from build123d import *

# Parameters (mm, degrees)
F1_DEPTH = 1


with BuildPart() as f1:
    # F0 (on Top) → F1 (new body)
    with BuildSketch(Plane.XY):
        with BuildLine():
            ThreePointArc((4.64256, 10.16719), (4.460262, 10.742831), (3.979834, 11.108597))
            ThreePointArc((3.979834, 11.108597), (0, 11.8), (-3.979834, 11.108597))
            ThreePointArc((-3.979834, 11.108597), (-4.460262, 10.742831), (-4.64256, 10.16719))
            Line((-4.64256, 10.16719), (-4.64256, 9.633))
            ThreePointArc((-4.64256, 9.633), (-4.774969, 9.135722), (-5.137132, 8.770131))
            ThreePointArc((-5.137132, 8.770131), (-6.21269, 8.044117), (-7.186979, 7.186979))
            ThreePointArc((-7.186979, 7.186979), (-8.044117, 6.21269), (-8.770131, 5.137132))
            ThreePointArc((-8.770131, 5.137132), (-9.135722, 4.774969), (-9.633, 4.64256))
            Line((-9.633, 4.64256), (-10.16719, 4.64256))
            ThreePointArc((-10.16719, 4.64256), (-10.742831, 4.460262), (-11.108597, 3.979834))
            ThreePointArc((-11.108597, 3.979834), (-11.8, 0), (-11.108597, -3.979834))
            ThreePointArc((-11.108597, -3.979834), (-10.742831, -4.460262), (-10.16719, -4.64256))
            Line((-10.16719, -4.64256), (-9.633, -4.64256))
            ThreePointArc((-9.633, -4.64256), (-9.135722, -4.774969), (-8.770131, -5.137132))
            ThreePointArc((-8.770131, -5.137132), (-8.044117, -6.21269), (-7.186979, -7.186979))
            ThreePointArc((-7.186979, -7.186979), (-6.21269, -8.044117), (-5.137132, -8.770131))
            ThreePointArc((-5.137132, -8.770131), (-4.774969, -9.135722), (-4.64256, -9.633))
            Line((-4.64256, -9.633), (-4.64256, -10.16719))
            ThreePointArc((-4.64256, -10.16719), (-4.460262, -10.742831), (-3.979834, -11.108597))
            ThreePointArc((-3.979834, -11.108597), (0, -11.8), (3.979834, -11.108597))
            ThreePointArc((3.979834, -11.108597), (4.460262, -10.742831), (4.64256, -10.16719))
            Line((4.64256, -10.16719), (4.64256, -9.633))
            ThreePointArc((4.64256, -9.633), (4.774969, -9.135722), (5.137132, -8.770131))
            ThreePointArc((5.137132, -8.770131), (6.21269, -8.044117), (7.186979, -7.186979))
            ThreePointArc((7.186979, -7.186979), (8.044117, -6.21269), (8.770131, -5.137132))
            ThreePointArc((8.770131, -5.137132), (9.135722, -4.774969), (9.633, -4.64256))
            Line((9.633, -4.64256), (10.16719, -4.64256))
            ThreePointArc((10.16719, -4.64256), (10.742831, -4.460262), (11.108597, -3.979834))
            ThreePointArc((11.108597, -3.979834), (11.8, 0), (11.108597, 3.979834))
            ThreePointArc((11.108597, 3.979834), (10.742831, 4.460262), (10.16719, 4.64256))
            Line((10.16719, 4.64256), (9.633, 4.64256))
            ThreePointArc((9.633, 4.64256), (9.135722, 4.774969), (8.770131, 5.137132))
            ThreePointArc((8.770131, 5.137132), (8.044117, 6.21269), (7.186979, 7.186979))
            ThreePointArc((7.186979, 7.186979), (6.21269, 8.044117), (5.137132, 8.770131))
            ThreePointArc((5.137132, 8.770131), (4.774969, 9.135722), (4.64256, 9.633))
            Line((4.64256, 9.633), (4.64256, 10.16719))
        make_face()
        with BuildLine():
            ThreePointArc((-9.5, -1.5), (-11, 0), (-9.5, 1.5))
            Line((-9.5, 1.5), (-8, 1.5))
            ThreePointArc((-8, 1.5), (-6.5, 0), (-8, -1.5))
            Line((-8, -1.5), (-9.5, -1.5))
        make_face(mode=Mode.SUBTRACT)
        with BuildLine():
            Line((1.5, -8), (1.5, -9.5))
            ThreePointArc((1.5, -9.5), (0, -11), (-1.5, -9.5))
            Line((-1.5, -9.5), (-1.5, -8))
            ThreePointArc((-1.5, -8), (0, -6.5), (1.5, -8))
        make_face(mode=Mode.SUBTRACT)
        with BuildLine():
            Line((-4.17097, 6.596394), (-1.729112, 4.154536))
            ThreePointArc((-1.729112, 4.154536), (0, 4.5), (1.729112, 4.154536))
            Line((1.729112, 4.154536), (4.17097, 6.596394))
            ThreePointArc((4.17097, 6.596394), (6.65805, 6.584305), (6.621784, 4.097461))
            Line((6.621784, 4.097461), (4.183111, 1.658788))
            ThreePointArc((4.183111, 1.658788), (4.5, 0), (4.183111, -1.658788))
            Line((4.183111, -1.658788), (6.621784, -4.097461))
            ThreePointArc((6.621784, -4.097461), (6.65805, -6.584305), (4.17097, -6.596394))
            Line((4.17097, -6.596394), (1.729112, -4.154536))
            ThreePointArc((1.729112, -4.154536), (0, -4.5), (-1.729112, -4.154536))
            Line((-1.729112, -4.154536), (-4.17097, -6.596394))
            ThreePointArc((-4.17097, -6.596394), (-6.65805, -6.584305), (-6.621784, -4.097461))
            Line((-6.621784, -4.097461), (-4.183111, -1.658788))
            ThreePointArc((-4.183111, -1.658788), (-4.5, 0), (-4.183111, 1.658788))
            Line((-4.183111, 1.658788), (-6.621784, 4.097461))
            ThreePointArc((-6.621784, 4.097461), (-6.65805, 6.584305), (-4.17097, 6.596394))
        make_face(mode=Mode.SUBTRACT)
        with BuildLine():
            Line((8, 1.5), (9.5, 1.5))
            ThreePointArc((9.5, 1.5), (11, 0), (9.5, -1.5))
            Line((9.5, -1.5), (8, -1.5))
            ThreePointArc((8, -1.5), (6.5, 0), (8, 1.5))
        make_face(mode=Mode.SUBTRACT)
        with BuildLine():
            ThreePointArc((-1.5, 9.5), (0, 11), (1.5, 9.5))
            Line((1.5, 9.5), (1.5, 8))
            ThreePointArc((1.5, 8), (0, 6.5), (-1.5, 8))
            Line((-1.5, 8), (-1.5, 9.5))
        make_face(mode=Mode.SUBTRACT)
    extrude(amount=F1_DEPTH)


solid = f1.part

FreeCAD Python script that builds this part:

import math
import FreeCAD as App
import Part
import Sketcher
from FreeCAD import Vector

doc = App.newDocument("Part")
body = doc.addObject("PartDesign::Body", "Body")

sketch1 = body.newObject("Sketcher::SketchObject", "Sketch")
sketch1.AttachmentSupport = (doc.getObject("XY_Plane"), [""])
sketch1.MapMode = "FlatFace"
sketch1.addGeometry([
    Part.ArcOfCircle(Part.Circle(Vector(3.6, 10.2, 0), Vector(0, 0, 1), 1), math.radians(0), math.radians(70)),
    Part.ArcOfCircle(Part.Circle(Vector(0, 0, 0), Vector(0, 0, 1), 11.8), math.radians(70), math.radians(110)),
    Part.ArcOfCircle(Part.Circle(Vector(-3.6, 10.2, 0), Vector(0, 0, 1), 1), math.radians(110), math.radians(180)),
    Part.LineSegment(Vector(-4.6, 10.2, 0), Vector(-4.6, 9.6, 0)),
    Part.ArcOfCircle(Part.Circle(Vector(-5.6, 9.6, 0), Vector(0, 0, 1), 1), math.radians(-60), math.radians(0)),
    Part.ArcOfCircle(Part.Circle(Vector(0, 0, 0), Vector(0, 0, 1), 10.2), math.radians(120.36), math.radians(135)),
    Part.ArcOfCircle(Part.Circle(Vector(0, 0, 0), Vector(0, 0, 1), 10.2), math.radians(135), math.radians(149.64)),
    Part.ArcOfCircle(Part.Circle(Vector(-9.6, 5.6, 0), Vector(0, 0, 1), 1), math.radians(-90), math.radians(-30)),
    Part.LineSegment(Vector(-9.6, 4.6, 0), Vector(-10.2, 4.6, 0)),
    Part.ArcOfCircle(Part.Circle(Vector(-10.2, 3.6, 0), Vector(0, 0, 1), 1), math.radians(90), math.radians(160)),
    Part.ArcOfCircle(Part.Circle(Vector(0, 0, 0), Vector(0, 0, 1), 11.8), math.radians(160), math.radians(200)),
    Part.ArcOfCircle(Part.Circle(Vector(-10.2, -3.6, 0), Vector(0, 0, 1), 1), math.radians(-160), math.radians(-90)),
    Part.LineSegment(Vector(-10.2, -4.6, 0), Vector(-9.6, -4.6, 0)),
    Part.ArcOfCircle(Part.Circle(Vector(-9.6, -5.6, 0), Vector(0, 0, 1), 1), math.radians(30), math.radians(90)),
    Part.ArcOfCircle(Part.Circle(Vector(0, 0, 0), Vector(0, 0, 1), 10.2), math.radians(-149.64), math.radians(-135)),
    Part.ArcOfCircle(Part.Circle(Vector(0, 0, 0), Vector(0, 0, 1), 10.2), math.radians(-135), math.radians(-120.36)),
    Part.ArcOfCircle(Part.Circle(Vector(-5.6, -9.6, 0), Vector(0, 0, 1), 1), math.radians(0), math.radians(60)),
    Part.LineSegment(Vector(-4.6, -9.6, 0), Vector(-4.6, -10.2, 0)),
    Part.ArcOfCircle(Part.Circle(Vector(-3.6, -10.2, 0), Vector(0, 0, 1), 1), math.radians(-180), math.radians(-110)),
    Part.ArcOfCircle(Part.Circle(Vector(0, 0, 0), Vector(0, 0, 1), 11.8), math.radians(-110), math.radians(-70)),
    Part.ArcOfCircle(Part.Circle(Vector(3.6, -10.2, 0), Vector(0, 0, 1), 1), math.radians(-70), math.radians(0)),
    Part.LineSegment(Vector(4.6, -10.2, 0), Vector(4.6, -9.6, 0)),
    Part.ArcOfCircle(Part.Circle(Vector(5.6, -9.6, 0), Vector(0, 0, 1), 1), math.radians(120), math.radians(180)),
    Part.ArcOfCircle(Part.Circle(Vector(0, 0, 0), Vector(0, 0, 1), 10.2), math.radians(-59.64), math.radians(-45)),
    Part.ArcOfCircle(Part.Circle(Vector(0, 0, 0), Vector(0, 0, 1), 10.2), math.radians(-45), math.radians(-30.36)),
    Part.ArcOfCircle(Part.Circle(Vector(9.6, -5.6, 0), Vector(0, 0, 1), 1), math.radians(90), math.radians(150)),
    Part.LineSegment(Vector(9.6, -4.6, 0), Vector(10.2, -4.6, 0)),
    Part.ArcOfCircle(Part.Circle(Vector(10.2, -3.6, 0), Vector(0, 0, 1), 1), math.radians(-90), math.radians(-20)),
    Part.ArcOfCircle(Part.Circle(Vector(0, 0, 0), Vector(0, 0, 1), 11.8), math.radians(-20), math.radians(20)),
    Part.ArcOfCircle(Part.Circle(Vector(10.2, 3.6, 0), Vector(0, 0, 1), 1), math.radians(20), math.radians(90)),
    Part.LineSegment(Vector(10.2, 4.6, 0), Vector(9.6, 4.6, 0)),
    Part.ArcOfCircle(Part.Circle(Vector(9.6, 5.6, 0), Vector(0, 0, 1), 1), math.radians(-150), math.radians(-90)),
    Part.ArcOfCircle(Part.Circle(Vector(0, 0, 0), Vector(0, 0, 1), 10.2), math.radians(30.36), math.radians(45)),
    Part.ArcOfCircle(Part.Circle(Vector(0, 0, 0), Vector(0, 0, 1), 10.2), math.radians(45), math.radians(59.64)),
    Part.ArcOfCircle(Part.Circle(Vector(5.6, 9.6, 0), Vector(0, 0, 1), 1), math.radians(-180), math.radians(-120)),
    Part.LineSegment(Vector(4.6, 9.6, 0), Vector(4.6, 10.2, 0)),
    Part.ArcOfCircle(Part.Circle(Vector(0, -8, 0), Vector(0, 0, 1), 1.5), math.radians(0), math.radians(180)),
    Part.LineSegment(Vector(1.5, -8, 0), Vector(1.5, -9.5, 0)),
    Part.ArcOfCircle(Part.Circle(Vector(0, -9.5, 0), Vector(0, 0, 1), 1.5), math.radians(180), math.radians(360)),
    Part.LineSegment(Vector(-1.5, -9.5, 0), Vector(-1.5, -8, 0)),
    Part.LineSegment(Vector(-8, -1.5, 0), Vector(-9.5, -1.5, 0)),
    Part.ArcOfCircle(Part.Circle(Vector(-9.5, 0, 0), Vector(0, 0, 1), 1.5), math.radians(90), math.radians(270)),
    Part.LineSegment(Vector(-9.5, 1.5, 0), Vector(-8, 1.5, 0)),
    Part.ArcOfCircle(Part.Circle(Vector(-8, 0, 0), Vector(0, 0, 1), 1.5), math.radians(-90), math.radians(90)),
    Part.ArcOfCircle(Part.Circle(Vector(-5.4, 5.4, 0), Vector(0, 0, 1), 1.8), math.radians(45), math.radians(226)),
    Part.LineSegment(Vector(-4.2, 6.6, 0), Vector(-1.7, 4.2, 0)),
    Part.ArcOfCircle(Part.Circle(Vector(0, 0, 0), Vector(0, 0, 1), 4.5), math.radians(67), math.radians(113)),
    Part.LineSegment(Vector(1.7, 4.2, 0), Vector(4.2, 6.6, 0)),
    Part.ArcOfCircle(Part.Circle(Vector(5.4, 5.4, 0), Vector(0, 0, 1), 1.8), math.radians(-46), math.radians(135)),
    Part.LineSegment(Vector(6.6, 4.1, 0), Vector(4.2, 1.7, 0)),
    Part.ArcOfCircle(Part.Circle(Vector(0, 0, 0), Vector(0, 0, 1), 4.5), math.radians(-22), math.radians(22)),
    Part.LineSegment(Vector(4.2, -1.7, 0), Vector(6.6, -4.1, 0)),
    Part.ArcOfCircle(Part.Circle(Vector(5.4, -5.4, 0), Vector(0, 0, 1), 1.8), math.radians(-135), math.radians(46)),
    Part.LineSegment(Vector(4.2, -6.6, 0), Vector(1.7, -4.2, 0)),
    Part.ArcOfCircle(Part.Circle(Vector(0, 0, 0), Vector(0, 0, 1), 4.5), math.radians(-113), math.radians(-67)),
    Part.LineSegment(Vector(-1.7, -4.2, 0), Vector(-4.2, -6.6, 0)),
    Part.ArcOfCircle(Part.Circle(Vector(-5.4, -5.4, 0), Vector(0, 0, 1), 1.8), math.radians(134), math.radians(315)),
    Part.LineSegment(Vector(-6.6, -4.1, 0), Vector(-4.2, -1.7, 0)),
    Part.ArcOfCircle(Part.Circle(Vector(0, 0, 0), Vector(0, 0, 1), 4.5), math.radians(158), math.radians(202)),
    Part.LineSegment(Vector(-4.2, 1.7, 0), Vector(-6.6, 4.1, 0)),
    Part.ArcOfCircle(Part.Circle(Vector(8, 0, 0), Vector(0, 0, 1), 1.5), math.radians(90), math.radians(270)),
    Part.LineSegment(Vector(8, 1.5, 0), Vector(9.5, 1.5, 0)),
    Part.ArcOfCircle(Part.Circle(Vector(9.5, 0, 0), Vector(0, 0, 1), 1.5), math.radians(-90), math.radians(90)),
    Part.LineSegment(Vector(9.5, -1.5, 0), Vector(8, -1.5, 0)),
    Part.LineSegment(Vector(-1.5, 8, 0), Vector(-1.5, 9.5, 0)),
    Part.ArcOfCircle(Part.Circle(Vector(0, 9.5, 0), Vector(0, 0, 1), 1.5), math.radians(0), math.radians(180)),
    Part.LineSegment(Vector(1.5, 9.5, 0), Vector(1.5, 8, 0)),
    Part.ArcOfCircle(Part.Circle(Vector(0, 8, 0), Vector(0, 0, 1), 1.5), math.radians(180), math.radians(360)),
], False)
sketch1.addConstraint([
    Sketcher.Constraint("Coincident", 0, 2, 1, 1),
    Sketcher.Constraint("Coincident", 1, 2, 2, 1),
    Sketcher.Constraint("Tangent", 2, 2, 3, 1),
    Sketcher.Constraint("Tangent", 3, 2, 4, 2),
    Sketcher.Constraint("Tangent", 4, 1, 5, 1),
    Sketcher.Constraint("Tangent", 5, 2, 6, 1),
    Sketcher.Constraint("Tangent", 6, 2, 7, 2),
    Sketcher.Constraint("Tangent", 7, 1, 8, 1),
    Sketcher.Constraint("Tangent", 8, 2, 9, 1),
    Sketcher.Constraint("Coincident", 9, 2, 10, 1),
    Sketcher.Constraint("Coincident", 10, 2, 11, 1),
    Sketcher.Constraint("Tangent", 11, 2, 12, 1),
    Sketcher.Constraint("Tangent", 12, 2, 13, 2),
    Sketcher.Constraint("Tangent", 13, 1, 14, 1),
    Sketcher.Constraint("Tangent", 14, 2, 15, 1),
    Sketcher.Constraint("Tangent", 15, 2, 16, 2),
    Sketcher.Constraint("Tangent", 16, 1, 17, 1),
    Sketcher.Constraint("Tangent", 17, 2, 18, 1),
    Sketcher.Constraint("Coincident", 18, 2, 19, 1),
    Sketcher.Constraint("Coincident", 19, 2, 20, 1),
    Sketcher.Constraint("Tangent", 20, 2, 21, 1),
    Sketcher.Constraint("Tangent", 21, 2, 22, 2),
    Sketcher.Constraint("Tangent", 22, 1, 23, 1),
    Sketcher.Constraint("Tangent", 23, 2, 24, 1),
    Sketcher.Constraint("Tangent", 24, 2, 25, 2),
    Sketcher.Constraint("Tangent", 25, 1, 26, 1),
    Sketcher.Constraint("Tangent", 26, 2, 27, 1),
    Sketcher.Constraint("Coincident", 27, 2, 28, 1),
    Sketcher.Constraint("Coincident", 28, 2, 29, 1),
    Sketcher.Constraint("Tangent", 29, 2, 30, 1),
    Sketcher.Constraint("Tangent", 30, 2, 31, 2),
    Sketcher.Constraint("Tangent", 31, 1, 32, 1),
    Sketcher.Constraint("Tangent", 32, 2, 33, 1),
    Sketcher.Constraint("Tangent", 33, 2, 34, 2),
    Sketcher.Constraint("Tangent", 34, 1, 35, 1),
    Sketcher.Constraint("Tangent", 35, 2, 0, 1),
    Sketcher.Constraint("Tangent", 36, 1, 37, 1),
    Sketcher.Constraint("Tangent", 37, 2, 38, 2),
    Sketcher.Constraint("Tangent", 38, 1, 39, 1),
    Sketcher.Constraint("Tangent", 39, 2, 36, 2),
    Sketcher.Constraint("Tangent", 40, 2, 41, 2),
    Sketcher.Constraint("Tangent", 41, 1, 42, 1),
    Sketcher.Constraint("Tangent", 42, 2, 43, 2),
    Sketcher.Constraint("Tangent", 43, 1, 40, 1),
    Sketcher.Constraint("Tangent", 44, 1, 45, 1),
    Sketcher.Constraint("Coincident", 45, 2, 46, 2),
    Sketcher.Constraint("Coincident", 46, 1, 47, 1),
    Sketcher.Constraint("Tangent", 47, 2, 48, 2),
    Sketcher.Constraint("Coincident", 48, 1, 49, 1),
    Sketcher.Constraint("Coincident", 49, 2, 50, 2),
    Sketcher.Constraint("Coincident", 50, 1, 51, 1),
    Sketcher.Constraint("Coincident", 51, 2, 52, 2),
    Sketcher.Constraint("Tangent", 52, 1, 53, 1),
    Sketcher.Constraint("Coincident", 53, 2, 54, 2),
    Sketcher.Constraint("Coincident", 54, 1, 55, 1),
    Sketcher.Constraint("Tangent", 55, 2, 56, 2),
    Sketcher.Constraint("Coincident", 56, 1, 57, 1),
    Sketcher.Constraint("Coincident", 57, 2, 58, 2),
    Sketcher.Constraint("Coincident", 58, 1, 59, 1),
    Sketcher.Constraint("Coincident", 59, 2, 44, 2),
    Sketcher.Constraint("Tangent", 60, 1, 61, 1),
    Sketcher.Constraint("Tangent", 61, 2, 62, 2),
    Sketcher.Constraint("Tangent", 62, 1, 63, 1),
    Sketcher.Constraint("Tangent", 63, 2, 60, 2),
    Sketcher.Constraint("Tangent", 64, 2, 65, 2),
    Sketcher.Constraint("Tangent", 65, 1, 66, 1),
    Sketcher.Constraint("Tangent", 66, 2, 67, 2),
    Sketcher.Constraint("Tangent", 67, 1, 64, 1),
    Sketcher.Constraint("Vertical", 3),
    Sketcher.Constraint("Horizontal", 8),
    Sketcher.Constraint("Horizontal", 12),
    Sketcher.Constraint("Vertical", 17),
    Sketcher.Constraint("Vertical", 21),
    Sketcher.Constraint("Horizontal", 26),
    Sketcher.Constraint("Horizontal", 30),
    Sketcher.Constraint("Vertical", 35),
    Sketcher.Constraint("Vertical", 37),
    Sketcher.Constraint("Vertical", 39),
    Sketcher.Constraint("Horizontal", 40),
    Sketcher.Constraint("Horizontal", 42),
    Sketcher.Constraint("Horizontal", 61),
    Sketcher.Constraint("Horizontal", 63),
    Sketcher.Constraint("Vertical", 64),
    Sketcher.Constraint("Vertical", 66),
    Sketcher.Constraint("Coincident", 1, 3, -1, 1),
    Sketcher.Constraint("Coincident", 10, 3, -1, 1),
    Sketcher.Constraint("Coincident", 19, 3, -1, 1),
    Sketcher.Constraint("Coincident", 28, 3, -1, 1),
    Sketcher.Constraint("Coincident", 46, 3, -1, 1),
    Sketcher.Constraint("Coincident", 50, 3, -1, 1),
    Sketcher.Constraint("Coincident", 54, 3, -1, 1),
    Sketcher.Constraint("Coincident", 58, 3, -1, 1),
    Sketcher.Constraint("Equal", 0, 2),
    Sketcher.Constraint("Equal", 2, 4),
    Sketcher.Constraint("Equal", 5, 6),
    Sketcher.Constraint("Equal", 4, 7),
    Sketcher.Constraint("Equal", 7, 9),
    Sketcher.Constraint("Equal", 1, 10),
    Sketcher.Constraint("Equal", 9, 11),
    Sketcher.Constraint("Equal", 11, 13),
    Sketcher.Constraint("Equal", 6, 14),
    Sketcher.Constraint("Equal", 14, 15),
    Sketcher.Constraint("Equal", 13, 16),
    Sketcher.Constraint("Equal", 16, 18),
    Sketcher.Constraint("Equal", 10, 19),
    Sketcher.Constraint("Equal", 18, 20),
    Sketcher.Constraint("Equal", 20, 22),
    Sketcher.Constraint("Equal", 15, 23),
    Sketcher.Constraint("Equal", 23, 24),
    Sketcher.Constraint("Equal", 22, 25),
    Sketcher.Constraint("Equal", 25, 27),
    Sketcher.Constraint("Equal", 19, 28),
    Sketcher.Constraint("Equal", 27, 29),
    Sketcher.Constraint("Equal", 29, 31),
    Sketcher.Constraint("Equal", 24, 32),
    Sketcher.Constraint("Equal", 32, 33),
    Sketcher.Constraint("Equal", 31, 34),
    Sketcher.Constraint("Equal", 38, 41),
    Sketcher.Constraint("Equal", 44, 48),
    Sketcher.Constraint("Equal", 48, 52),
    Sketcher.Constraint("Equal", 46, 54),
    Sketcher.Constraint("Equal", 52, 56),
    Sketcher.Constraint("Equal", 50, 58),
    Sketcher.Constraint("Equal", 43, 60),
    Sketcher.Constraint("Equal", 62, 65),
    Sketcher.Constraint("Symmetric", 4, 3, 22, 3, -1, 1),
    Sketcher.Constraint("Symmetric", 7, 3, 25, 3, -1, 1),
    Sketcher.Constraint("Symmetric", 13, 3, 31, 3, -1, 1),
    Sketcher.Constraint("Symmetric", 16, 3, 34, 3, -1, 1),
    Sketcher.Constraint("Symmetric", 44, 3, 52, 3, -1, 1),
    Sketcher.Constraint("Symmetric", 48, 3, 56, 3, -1, 1),
    Sketcher.Constraint("Symmetric", 43, 3, 60, 3, -1, 1),
    Sketcher.Constraint("Symmetric", 38, 3, 65, 3, -1, 1),
    Sketcher.Constraint("Symmetric", 16, 3, 22, 3, -2),
    Sketcher.Constraint("Symmetric", 13, 3, 25, 3, -2),
    Sketcher.Constraint("Symmetric", 44, 3, 48, 3, -2),
    Sketcher.Constraint("Symmetric", 41, 3, 62, 3, -2),
    Sketcher.Constraint("Symmetric", 36, 3, 67, 3, -1),
    Sketcher.Constraint("Perpendicular", 45, 47),
    Sketcher.Constraint("Parallel", 47, 49),
    Sketcher.Constraint("Perpendicular", 49, 51),
    Sketcher.Constraint("Parallel", 51, 53),
    Sketcher.Constraint("Perpendicular", 53, 55),
    Sketcher.Constraint("Parallel", 55, 57),
    Sketcher.Constraint("Perpendicular", 57, 59),
    Sketcher.Constraint("Horizontal", 0, 2, 1, 2),
    Sketcher.Constraint("Horizontal", 18, 2, 19, 2),
    Sketcher.Constraint("Horizontal", 14, 2, 23, 2),
    Sketcher.Constraint("Horizontal", 10, 2, 27, 2),
    Sketcher.Constraint("Horizontal", 9, 2, 28, 2),
    Sketcher.Constraint("Horizontal", 5, 2, 32, 2),
    Sketcher.Constraint("Horizontal", 45, 2, 46, 1),
    Sketcher.Constraint("Horizontal", 51, 2, 56, 1),
    Sketcher.Constraint("Horizontal", 49, 2, 58, 1),
    Sketcher.Constraint("Vertical", 9, 2, 10, 2),
    Sketcher.Constraint("Vertical", 5, 2, 14, 2),
    Sketcher.Constraint("Vertical", 1, 2, 18, 2),
    Sketcher.Constraint("Vertical", 49, 2, 50, 1),
    Sketcher.Constraint("Equal", 30, 3),
    Sketcher.Constraint("Equal", 63, 37),
    Sketcher.Constraint("Radius", 36, 1.5),
    Sketcher.Constraint("DistanceX", 40, 2, 40, 1, 1.5),
    Sketcher.Constraint("DistanceY", 36, 3, -1, 1, 8.0),
    Sketcher.Constraint("DistanceX", 43, 3, -1, 1, 8.0),
    Sketcher.Constraint("DistanceY", -1, 1, 4, 3, 9.633001),
    Sketcher.Constraint("DistanceX", 7, 3, -1, 1, 9.633001),
    Sketcher.Constraint("Radius", 0, 1.000003),
    Sketcher.Constraint("Radius", 1, 11.800004),
    Sketcher.Constraint("Radius", 5, 10.163883),
    Sketcher.Constraint("Radius", 44, 1.750165),
    Sketcher.Constraint("Radius", 46, 4.499997),
    Sketcher.Constraint("Radius", 50, 4.499993),
    Sketcher.Constraint("DistanceX", 8, 2, 8, 1, 0.53419),
    Sketcher.Constraint("Distance", 45, 3.453309),
    Sketcher.Constraint("DistanceY", -1, 1, 44, 3, 5.358841),
    Sketcher.Constraint("DistanceX", 5, 2, -1, 1, 7.186979),
    Sketcher.Constraint("DistanceY", -1, 1, 48, 1, 4.097461),
    Sketcher.Constraint("DistanceX", -1, 1, 0, 2, 3.979834),
    Sketcher.Constraint("DistanceX", 9, 2, -1, 1, 11.108597),
])
pad1 = body.newObject("PartDesign::Pad", "Pad")
pad1.Profile = sketch1
pad1.Length = 1

doc.recompute()
